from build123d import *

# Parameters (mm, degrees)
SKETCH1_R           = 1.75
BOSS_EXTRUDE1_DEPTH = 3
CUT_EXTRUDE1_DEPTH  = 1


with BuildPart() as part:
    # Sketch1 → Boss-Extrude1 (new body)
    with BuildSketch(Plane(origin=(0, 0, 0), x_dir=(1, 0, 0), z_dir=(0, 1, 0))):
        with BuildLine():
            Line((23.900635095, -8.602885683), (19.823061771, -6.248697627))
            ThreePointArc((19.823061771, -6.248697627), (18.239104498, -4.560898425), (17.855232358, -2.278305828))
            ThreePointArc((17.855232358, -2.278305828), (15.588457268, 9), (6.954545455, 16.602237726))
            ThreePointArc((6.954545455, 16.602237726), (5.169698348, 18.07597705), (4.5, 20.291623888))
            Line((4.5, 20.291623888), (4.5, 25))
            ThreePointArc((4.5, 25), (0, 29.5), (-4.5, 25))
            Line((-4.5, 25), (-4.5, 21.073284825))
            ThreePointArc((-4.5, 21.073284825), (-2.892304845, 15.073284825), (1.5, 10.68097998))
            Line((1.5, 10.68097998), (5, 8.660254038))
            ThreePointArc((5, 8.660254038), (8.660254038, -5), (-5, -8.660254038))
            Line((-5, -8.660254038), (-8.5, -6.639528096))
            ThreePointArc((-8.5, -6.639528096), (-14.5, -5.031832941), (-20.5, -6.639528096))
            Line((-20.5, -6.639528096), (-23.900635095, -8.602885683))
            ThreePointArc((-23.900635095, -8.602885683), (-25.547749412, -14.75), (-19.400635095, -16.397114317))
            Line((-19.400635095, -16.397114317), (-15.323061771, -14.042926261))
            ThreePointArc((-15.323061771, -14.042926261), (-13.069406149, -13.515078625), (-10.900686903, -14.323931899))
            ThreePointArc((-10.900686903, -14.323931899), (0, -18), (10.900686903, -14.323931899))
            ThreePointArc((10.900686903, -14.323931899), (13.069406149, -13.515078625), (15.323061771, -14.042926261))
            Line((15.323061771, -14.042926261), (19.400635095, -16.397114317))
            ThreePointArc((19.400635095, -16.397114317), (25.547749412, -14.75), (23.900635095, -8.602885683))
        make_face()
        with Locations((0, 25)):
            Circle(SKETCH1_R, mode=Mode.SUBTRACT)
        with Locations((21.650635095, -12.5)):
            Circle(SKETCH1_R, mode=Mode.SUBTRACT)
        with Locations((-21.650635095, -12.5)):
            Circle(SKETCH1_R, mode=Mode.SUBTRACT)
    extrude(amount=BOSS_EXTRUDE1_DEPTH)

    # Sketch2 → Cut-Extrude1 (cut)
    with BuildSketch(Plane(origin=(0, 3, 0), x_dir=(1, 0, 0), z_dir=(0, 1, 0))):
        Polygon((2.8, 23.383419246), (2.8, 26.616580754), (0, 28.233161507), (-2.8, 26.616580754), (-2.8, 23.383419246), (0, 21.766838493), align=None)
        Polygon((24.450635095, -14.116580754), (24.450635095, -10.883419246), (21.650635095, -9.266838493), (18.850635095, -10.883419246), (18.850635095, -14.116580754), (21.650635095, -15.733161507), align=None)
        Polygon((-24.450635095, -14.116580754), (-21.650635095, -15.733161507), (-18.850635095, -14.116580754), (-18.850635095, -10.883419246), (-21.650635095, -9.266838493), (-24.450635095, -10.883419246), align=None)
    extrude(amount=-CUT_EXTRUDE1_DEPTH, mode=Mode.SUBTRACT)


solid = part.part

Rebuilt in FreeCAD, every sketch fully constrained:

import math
import FreeCAD as App
import Part
import Sketcher
from FreeCAD import Vector
Q = App.Units.Quantity


def add_polygon(sketch, points):
    """Adds a closed chain of lines whose ends are joined by coincident constraints."""
    first, n = sketch.GeometryCount, len(points)
    for a, b in zip(points, points[1:] + points[:1]):
        sketch.addGeometry(Part.LineSegment(App.Vector(*a, 0), App.Vector(*b, 0)), False)
    for i in range(n):
        sketch.addConstraint(Sketcher.Constraint("Coincident", first + i, 2, first + (i + 1) % n, 1))

doc = App.newDocument("Part")
body = doc.addObject("PartDesign::Body", "Body")

# Sketch on XZ plane
sketch1 = doc.addObject("Sketcher::SketchObject", "Sketch")
body.addObject(sketch1)
sketch1.AttachmentSupport = (doc.XZ_Plane, [""])
sketch1.MapMode = "FlatFace"
sketch1.addGeometry(Part.LineSegment(Vector(23.9, 8.6, 0), Vector(19.8, 6.2, 0)), False)
sketch1.addGeometry(Part.ArcOfCircle(Part.Circle(Vector(21.8, 2.8, 0), Vector(0, 0, 1), 4), math.radians(120), math.radians(187)), False)
sketch1.addGeometry(Part.ArcOfCircle(Part.Circle(Vector(0, 0, 0), Vector(0, 0, 1), 18), math.radians(-67), math.radians(7)), False)
sketch1.addGeometry(Part.ArcOfCircle(Part.Circle(Vector(8.5, -20.3, 0), Vector(0, 0, 1), 4), math.radians(113), math.radians(180)), False)
sketch1.addGeometry(Part.LineSegment(Vector(4.5, -20.3, 0), Vector(4.5, -25, 0)), False)
sketch1.addGeometry(Part.ArcOfCircle(Part.Circle(Vector(0, -25, 0), Vector(0, 0, 1), 4.5), math.radians(180), math.radians(360)), False)
sketch1.addGeometry(Part.LineSegment(Vector(-4.5, -25, 0), Vector(-4.5, -21.1, 0)), False)
sketch1.addGeometry(Part.ArcOfCircle(Part.Circle(Vector(7.5, -21.1, 0), Vector(0, 0, 1), 12), math.radians(120), math.radians(180)), False)
sketch1.addGeometry(Part.LineSegment(Vector(1.5, -10.7, 0), Vector(5, -8.7, 0)), False)
sketch1.addGeometry(Part.ArcOfCircle(Part.Circle(Vector(0, 0, 0), Vector(0, 0, 1), 10), math.radians(-60), math.radians(120)), False)
sketch1.addGeometry(Part.LineSegment(Vector(-5, 8.7, 0), Vector(-8.5, 6.6, 0)), False)
sketch1.addGeometry(Part.ArcOfCircle(Part.Circle(Vector(-14.5, 17, 0), Vector(0, 0, 1), 12), math.radians(-120), math.radians(-60)), False)
sketch1.addGeometry(Part.LineSegment(Vector(-20.5, 6.6, 0), Vector(-23.9, 8.6, 0)), False)
sketch1.addGeometry(Part.ArcOfCircle(Part.Circle(Vector(-21.7, 12.5, 0), Vector(0, 0, 1), 4.5), math.radians(60), math.radians(240)), False)
sketch1.addGeometry(Part.LineSegment(Vector(-19.4, 16.4, 0), Vector(-15.3, 14, 0)), False)
sketch1.addGeometry(Part.ArcOfCircle(Part.Circle(Vector(-13.3, 17.5, 0), Vector(0, 0, 1), 4), math.radians(-120), math.radians(-53)), False)
sketch1.addGeometry(Part.ArcOfCircle(Part.Circle(Vector(0, 0, 0), Vector(0, 0, 1), 18), math.radians(53), math.radians(127)), False)
sketch1.addGeometry(Part.ArcOfCircle(Part.Circle(Vector(13.3, 17.5, 0), Vector(0, 0, 1), 4), math.radians(-127), math.radians(-60)), False)
sketch1.addGeometry(Part.LineSegment(Vector(15.3, 14, 0), Vector(19.4, 16.4, 0)), False)
sketch1.addGeometry(Part.ArcOfCircle(Part.Circle(Vector(21.7, 12.5, 0), Vector(0, 0, 1), 4.5), math.radians(-60), math.radians(120)), False)
sketch1.addGeometry(Part.Circle(Vector(-21.7, 12.5, 0), Vector(0, 0, 1), 1.8), False)
sketch1.addGeometry(Part.Circle(Vector(21.7, 12.5, 0), Vector(0, 0, 1), 1.8), False)
sketch1.addGeometry(Part.Circle(Vector(0, -25, 0), Vector(0, 0, 1), 1.8), False)
sketch1.addConstraint(Sketcher.Constraint("Tangent", 0, 2, 1, 1))
sketch1.addConstraint(Sketcher.Constraint("Tangent", 1, 2, 2, 2))
sketch1.addConstraint(Sketcher.Constraint("Tangent", 2, 1, 3, 1))
sketch1.addConstraint(Sketcher.Constraint("Tangent", 3, 2, 4, 1))
sketch1.addConstraint(Sketcher.Constraint("Tangent", 4, 2, 5, 2))
sketch1.addConstraint(Sketcher.Constraint("Tangent", 5, 1, 6, 1))
sketch1.addConstraint(Sketcher.Constraint("Tangent", 6, 2, 7, 2))
sketch1.addConstraint(Sketcher.Constraint("Tangent", 7, 1, 8, 1))
sketch1.addConstraint(Sketcher.Constraint("Tangent", 8, 2, 9, 1))
sketch1.addConstraint(Sketcher.Constraint("Tangent", 9, 2, 10, 1))
sketch1.addConstraint(Sketcher.Constraint("Tangent", 10, 2, 11, 2))
sketch1.addConstraint(Sketcher.Constraint("Tangent", 11, 1, 12, 1))
sketch1.addConstraint(Sketcher.Constraint("Tangent", 12, 2, 13, 2))
sketch1.addConstraint(Sketcher.Constraint("Tangent", 13, 1, 14, 1))
sketch1.addConstraint(Sketcher.Constraint("Tangent", 14, 2, 15, 1))
sketch1.addConstraint(Sketcher.Constraint("Tangent", 15, 2, 16, 2))
sketch1.addConstraint(Sketcher.Constraint("Tangent", 16, 1, 17, 1))
sketch1.addConstraint(Sketcher.Constraint("Tangent", 17, 2, 18, 1))
sketch1.addConstraint(Sketcher.Constraint("Tangent", 18, 2, 19, 2))
sketch1.addConstraint(Sketcher.Constraint("Tangent", 19, 1, 0, 1))
sketch1.addConstraint(Sketcher.Constraint("Vertical", 4))
sketch1.addConstraint(Sketcher.Constraint("Vertical", 6))
sketch1.addConstraint(Sketcher.Constraint("Coincident", 2, 3, -1, 1))
sketch1.addConstraint(Sketcher.Constraint("Coincident", 9, 3, -1, 1))
sketch1.addConstraint(Sketcher.Constraint("Coincident", 16, 3, -1, 1))
sketch1.addConstraint(Sketcher.Constraint("Coincident", 20, 3, 13, 3))
sketch1.addConstraint(Sketcher.Constraint("Coincident", 21, 3, 19, 3))
sketch1.addConstraint(Sketcher.Constraint("Coincident", 22, 3, 5, 3))
sketch1.addConstraint(Sketcher.Constraint("Equal", 1, 3))
sketch1.addConstraint(Sketcher.Constraint("Equal", 7, 11))
sketch1.addConstraint(Sketcher.Constraint("Equal", 5, 13))
sketch1.addConstraint(Sketcher.Constraint("Equal", 3, 15))
sketch1.addConstraint(Sketcher.Constraint("Equal", 2, 16))
sketch1.addConstraint(Sketcher.Constraint("Equal", 15, 17))
sketch1.addConstraint(Sketcher.Constraint("Equal", 13, 19))
sketch1.addConstraint(Sketcher.Constraint("Equal", 20, 21))
sketch1.addConstraint(Sketcher.Constraint("Equal", 21, 22))
sketch1.addConstraint(Sketcher.Constraint("Symmetric", 13, 3, 19, 3, -2))
sketch1.addConstraint(Sketcher.Constraint("PointOnObject", 5, 3, -2))
sketch1.addConstraint(Sketcher.Constraint("Parallel", 0, 8))
sketch1.addConstraint(Sketcher.Constraint("Parallel", 8, 10))
sketch1.addConstraint(Sketcher.Constraint("Parallel", 12, 14))
sketch1.addConstraint(Sketcher.Constraint("Parallel", 10, 18))
sketch1.addConstraint(Sketcher.Constraint("Horizontal", 15, 3, 17, 3))
sketch1.addConstraint(Sketcher.Constraint("Equal", 8, 10))
sketch1.addConstraint(Sketcher.Constraint("Equal", 0, 14))
sketch1.addConstraint(Sketcher.Constraint("Radius", 1, 4.0))
sketch1.addConstraint(Sketcher.Constraint("Radius", 2, 18.0))
sketch1.addConstraint(Sketcher.Constraint("Radius", 7, 12.0))
sketch1.addConstraint(Sketcher.Constraint("Radius", 9, 10.0))
sketch1.addConstraint(Sketcher.Constraint("Diameter", 20, 3.5))
sketch1.addConstraint(Sketcher.Constraint("Radius", 5, 4.5))
sketch1.addConstraint(Sketcher.Constraint("DistanceY", 5, 3, -1, 1, 25.0))
sketch1.addConstraint(Sketcher.Constraint("DistanceY", -1, 1, 13, 3, 12.5))
pad1 = doc.addObject("PartDesign::Pad", "Pad")
body.addObject(pad1)
pad1.Profile = sketch1
pad1.Length = 3
pad1.Reversed = True

# Sketch on XZ plane
sketch2 = doc.addObject("Sketcher::SketchObject", "Sketch001")
body.addObject(sketch2)
sketch2.AttachmentSupport = (doc.XZ_Plane, [""])
sketch2.MapMode = "FlatFace"
sketch2.AttachmentOffset = App.Placement(Vector(0, 0, -3), App.Rotation())
add_polygon(sketch2, [(2.8, -23.4), (2.8, -26.6), (0, -28.2), (-2.8, -26.6), (-2.8, -23.4), (0, -21.8)])  # lines 0-5
add_polygon(sketch2, [(24.5, 14.1), (24.5, 10.9), (21.7, 9.3), (18.9, 10.9), (18.9, 14.1), (21.7, 15.7)])  # lines 6-11
add_polygon(sketch2, [(-24.5, 14.1), (-21.7, 15.7), (-18.9, 14.1), (-18.9, 10.9), (-21.7, 9.3), (-24.5, 10.9)])  # lines 12-17
sketch2.addConstraint(Sketcher.Constraint("Vertical", 0))
sketch2.addConstraint(Sketcher.Constraint("Vertical", 3))
sketch2.addConstraint(Sketcher.Constraint("Vertical", 6))
sketch2.addConstraint(Sketcher.Constraint("Vertical", 9))
sketch2.addConstraint(Sketcher.Constraint("Vertical", 14))
sketch2.addConstraint(Sketcher.Constraint("Vertical", 17))
sketch2.addConstraint(Sketcher.Constraint("Symmetric", 0, 2, 2, 2, -2))
sketch2.addConstraint(Sketcher.Constraint("Symmetric", 10, 2, 12, 2, -2))
sketch2.addConstraint(Sketcher.Constraint("Symmetric", 9, 2, 13, 2, -2))
sketch2.addConstraint(Sketcher.Constraint("Symmetric", 7, 2, 15, 2, -2))
sketch2.addConstraint(Sketcher.Constraint("Symmetric", 6, 2, 16, 2, -2))
sketch2.addConstraint(Sketcher.Constraint("PointOnObject", 1, 2, -2))
sketch2.addConstraint(Sketcher.Constraint("PointOnObject", 4, 2, -2))
sketch2.addConstraint(Sketcher.Constraint("Parallel", 1, 4))
sketch2.addConstraint(Sketcher.Constraint("Parallel", 2, 5))
sketch2.addConstraint(Sketcher.Constraint("Parallel", 4, 7))
sketch2.addConstraint(Sketcher.Constraint("Parallel", 5, 8))
sketch2.addConstraint(Sketcher.Constraint("Parallel", 7, 10))
sketch2.addConstraint(Sketcher.Constraint("Parallel", 8, 11))
sketch2.addConstraint(Sketcher.Constraint("Parallel", 10, 12))
sketch2.addConstraint(Sketcher.Constraint("Parallel", 12, 15))
sketch2.addConstraint(Sketcher.Constraint("Horizontal", 6, 2, 8, 2))
sketch2.addConstraint(Sketcher.Constraint("Horizontal", 9, 2, 11, 2))
sketch2.addConstraint(Sketcher.Constraint("Equal", 3, 6))
sketch2.addConstraint(Sketcher.Constraint("Equal", 5, 7))
sketch2.addConstraint(Sketcher.Constraint("Angle", 1, Q("-150 deg")))
sketch2.addConstraint(Sketcher.Constraint("DistanceX", -1, 1, 0, 2, 2.8))
sketch2.addConstraint(Sketcher.Constraint("DistanceY", 0, 2, 6, 2, 37.5))
sketch2.addConstraint(Sketcher.Constraint("DistanceY", 0, 2, 0, 1, 3.233162))
sketch2.addConstraint(Sketcher.Constraint("DistanceY", 0, 2, -1, 1, 26.616581))
sketch2.addConstraint(Sketcher.Constraint("DistanceX", 12, 2, 9, 2, 40.50127))
pocket1 = doc.addObject("PartDesign::Pocket", "Pocket")
body.addObject(pocket1)
pocket1.Profile = sketch2
pocket1.Length = 1
pocket1.Reversed = True

doc.recompute()
